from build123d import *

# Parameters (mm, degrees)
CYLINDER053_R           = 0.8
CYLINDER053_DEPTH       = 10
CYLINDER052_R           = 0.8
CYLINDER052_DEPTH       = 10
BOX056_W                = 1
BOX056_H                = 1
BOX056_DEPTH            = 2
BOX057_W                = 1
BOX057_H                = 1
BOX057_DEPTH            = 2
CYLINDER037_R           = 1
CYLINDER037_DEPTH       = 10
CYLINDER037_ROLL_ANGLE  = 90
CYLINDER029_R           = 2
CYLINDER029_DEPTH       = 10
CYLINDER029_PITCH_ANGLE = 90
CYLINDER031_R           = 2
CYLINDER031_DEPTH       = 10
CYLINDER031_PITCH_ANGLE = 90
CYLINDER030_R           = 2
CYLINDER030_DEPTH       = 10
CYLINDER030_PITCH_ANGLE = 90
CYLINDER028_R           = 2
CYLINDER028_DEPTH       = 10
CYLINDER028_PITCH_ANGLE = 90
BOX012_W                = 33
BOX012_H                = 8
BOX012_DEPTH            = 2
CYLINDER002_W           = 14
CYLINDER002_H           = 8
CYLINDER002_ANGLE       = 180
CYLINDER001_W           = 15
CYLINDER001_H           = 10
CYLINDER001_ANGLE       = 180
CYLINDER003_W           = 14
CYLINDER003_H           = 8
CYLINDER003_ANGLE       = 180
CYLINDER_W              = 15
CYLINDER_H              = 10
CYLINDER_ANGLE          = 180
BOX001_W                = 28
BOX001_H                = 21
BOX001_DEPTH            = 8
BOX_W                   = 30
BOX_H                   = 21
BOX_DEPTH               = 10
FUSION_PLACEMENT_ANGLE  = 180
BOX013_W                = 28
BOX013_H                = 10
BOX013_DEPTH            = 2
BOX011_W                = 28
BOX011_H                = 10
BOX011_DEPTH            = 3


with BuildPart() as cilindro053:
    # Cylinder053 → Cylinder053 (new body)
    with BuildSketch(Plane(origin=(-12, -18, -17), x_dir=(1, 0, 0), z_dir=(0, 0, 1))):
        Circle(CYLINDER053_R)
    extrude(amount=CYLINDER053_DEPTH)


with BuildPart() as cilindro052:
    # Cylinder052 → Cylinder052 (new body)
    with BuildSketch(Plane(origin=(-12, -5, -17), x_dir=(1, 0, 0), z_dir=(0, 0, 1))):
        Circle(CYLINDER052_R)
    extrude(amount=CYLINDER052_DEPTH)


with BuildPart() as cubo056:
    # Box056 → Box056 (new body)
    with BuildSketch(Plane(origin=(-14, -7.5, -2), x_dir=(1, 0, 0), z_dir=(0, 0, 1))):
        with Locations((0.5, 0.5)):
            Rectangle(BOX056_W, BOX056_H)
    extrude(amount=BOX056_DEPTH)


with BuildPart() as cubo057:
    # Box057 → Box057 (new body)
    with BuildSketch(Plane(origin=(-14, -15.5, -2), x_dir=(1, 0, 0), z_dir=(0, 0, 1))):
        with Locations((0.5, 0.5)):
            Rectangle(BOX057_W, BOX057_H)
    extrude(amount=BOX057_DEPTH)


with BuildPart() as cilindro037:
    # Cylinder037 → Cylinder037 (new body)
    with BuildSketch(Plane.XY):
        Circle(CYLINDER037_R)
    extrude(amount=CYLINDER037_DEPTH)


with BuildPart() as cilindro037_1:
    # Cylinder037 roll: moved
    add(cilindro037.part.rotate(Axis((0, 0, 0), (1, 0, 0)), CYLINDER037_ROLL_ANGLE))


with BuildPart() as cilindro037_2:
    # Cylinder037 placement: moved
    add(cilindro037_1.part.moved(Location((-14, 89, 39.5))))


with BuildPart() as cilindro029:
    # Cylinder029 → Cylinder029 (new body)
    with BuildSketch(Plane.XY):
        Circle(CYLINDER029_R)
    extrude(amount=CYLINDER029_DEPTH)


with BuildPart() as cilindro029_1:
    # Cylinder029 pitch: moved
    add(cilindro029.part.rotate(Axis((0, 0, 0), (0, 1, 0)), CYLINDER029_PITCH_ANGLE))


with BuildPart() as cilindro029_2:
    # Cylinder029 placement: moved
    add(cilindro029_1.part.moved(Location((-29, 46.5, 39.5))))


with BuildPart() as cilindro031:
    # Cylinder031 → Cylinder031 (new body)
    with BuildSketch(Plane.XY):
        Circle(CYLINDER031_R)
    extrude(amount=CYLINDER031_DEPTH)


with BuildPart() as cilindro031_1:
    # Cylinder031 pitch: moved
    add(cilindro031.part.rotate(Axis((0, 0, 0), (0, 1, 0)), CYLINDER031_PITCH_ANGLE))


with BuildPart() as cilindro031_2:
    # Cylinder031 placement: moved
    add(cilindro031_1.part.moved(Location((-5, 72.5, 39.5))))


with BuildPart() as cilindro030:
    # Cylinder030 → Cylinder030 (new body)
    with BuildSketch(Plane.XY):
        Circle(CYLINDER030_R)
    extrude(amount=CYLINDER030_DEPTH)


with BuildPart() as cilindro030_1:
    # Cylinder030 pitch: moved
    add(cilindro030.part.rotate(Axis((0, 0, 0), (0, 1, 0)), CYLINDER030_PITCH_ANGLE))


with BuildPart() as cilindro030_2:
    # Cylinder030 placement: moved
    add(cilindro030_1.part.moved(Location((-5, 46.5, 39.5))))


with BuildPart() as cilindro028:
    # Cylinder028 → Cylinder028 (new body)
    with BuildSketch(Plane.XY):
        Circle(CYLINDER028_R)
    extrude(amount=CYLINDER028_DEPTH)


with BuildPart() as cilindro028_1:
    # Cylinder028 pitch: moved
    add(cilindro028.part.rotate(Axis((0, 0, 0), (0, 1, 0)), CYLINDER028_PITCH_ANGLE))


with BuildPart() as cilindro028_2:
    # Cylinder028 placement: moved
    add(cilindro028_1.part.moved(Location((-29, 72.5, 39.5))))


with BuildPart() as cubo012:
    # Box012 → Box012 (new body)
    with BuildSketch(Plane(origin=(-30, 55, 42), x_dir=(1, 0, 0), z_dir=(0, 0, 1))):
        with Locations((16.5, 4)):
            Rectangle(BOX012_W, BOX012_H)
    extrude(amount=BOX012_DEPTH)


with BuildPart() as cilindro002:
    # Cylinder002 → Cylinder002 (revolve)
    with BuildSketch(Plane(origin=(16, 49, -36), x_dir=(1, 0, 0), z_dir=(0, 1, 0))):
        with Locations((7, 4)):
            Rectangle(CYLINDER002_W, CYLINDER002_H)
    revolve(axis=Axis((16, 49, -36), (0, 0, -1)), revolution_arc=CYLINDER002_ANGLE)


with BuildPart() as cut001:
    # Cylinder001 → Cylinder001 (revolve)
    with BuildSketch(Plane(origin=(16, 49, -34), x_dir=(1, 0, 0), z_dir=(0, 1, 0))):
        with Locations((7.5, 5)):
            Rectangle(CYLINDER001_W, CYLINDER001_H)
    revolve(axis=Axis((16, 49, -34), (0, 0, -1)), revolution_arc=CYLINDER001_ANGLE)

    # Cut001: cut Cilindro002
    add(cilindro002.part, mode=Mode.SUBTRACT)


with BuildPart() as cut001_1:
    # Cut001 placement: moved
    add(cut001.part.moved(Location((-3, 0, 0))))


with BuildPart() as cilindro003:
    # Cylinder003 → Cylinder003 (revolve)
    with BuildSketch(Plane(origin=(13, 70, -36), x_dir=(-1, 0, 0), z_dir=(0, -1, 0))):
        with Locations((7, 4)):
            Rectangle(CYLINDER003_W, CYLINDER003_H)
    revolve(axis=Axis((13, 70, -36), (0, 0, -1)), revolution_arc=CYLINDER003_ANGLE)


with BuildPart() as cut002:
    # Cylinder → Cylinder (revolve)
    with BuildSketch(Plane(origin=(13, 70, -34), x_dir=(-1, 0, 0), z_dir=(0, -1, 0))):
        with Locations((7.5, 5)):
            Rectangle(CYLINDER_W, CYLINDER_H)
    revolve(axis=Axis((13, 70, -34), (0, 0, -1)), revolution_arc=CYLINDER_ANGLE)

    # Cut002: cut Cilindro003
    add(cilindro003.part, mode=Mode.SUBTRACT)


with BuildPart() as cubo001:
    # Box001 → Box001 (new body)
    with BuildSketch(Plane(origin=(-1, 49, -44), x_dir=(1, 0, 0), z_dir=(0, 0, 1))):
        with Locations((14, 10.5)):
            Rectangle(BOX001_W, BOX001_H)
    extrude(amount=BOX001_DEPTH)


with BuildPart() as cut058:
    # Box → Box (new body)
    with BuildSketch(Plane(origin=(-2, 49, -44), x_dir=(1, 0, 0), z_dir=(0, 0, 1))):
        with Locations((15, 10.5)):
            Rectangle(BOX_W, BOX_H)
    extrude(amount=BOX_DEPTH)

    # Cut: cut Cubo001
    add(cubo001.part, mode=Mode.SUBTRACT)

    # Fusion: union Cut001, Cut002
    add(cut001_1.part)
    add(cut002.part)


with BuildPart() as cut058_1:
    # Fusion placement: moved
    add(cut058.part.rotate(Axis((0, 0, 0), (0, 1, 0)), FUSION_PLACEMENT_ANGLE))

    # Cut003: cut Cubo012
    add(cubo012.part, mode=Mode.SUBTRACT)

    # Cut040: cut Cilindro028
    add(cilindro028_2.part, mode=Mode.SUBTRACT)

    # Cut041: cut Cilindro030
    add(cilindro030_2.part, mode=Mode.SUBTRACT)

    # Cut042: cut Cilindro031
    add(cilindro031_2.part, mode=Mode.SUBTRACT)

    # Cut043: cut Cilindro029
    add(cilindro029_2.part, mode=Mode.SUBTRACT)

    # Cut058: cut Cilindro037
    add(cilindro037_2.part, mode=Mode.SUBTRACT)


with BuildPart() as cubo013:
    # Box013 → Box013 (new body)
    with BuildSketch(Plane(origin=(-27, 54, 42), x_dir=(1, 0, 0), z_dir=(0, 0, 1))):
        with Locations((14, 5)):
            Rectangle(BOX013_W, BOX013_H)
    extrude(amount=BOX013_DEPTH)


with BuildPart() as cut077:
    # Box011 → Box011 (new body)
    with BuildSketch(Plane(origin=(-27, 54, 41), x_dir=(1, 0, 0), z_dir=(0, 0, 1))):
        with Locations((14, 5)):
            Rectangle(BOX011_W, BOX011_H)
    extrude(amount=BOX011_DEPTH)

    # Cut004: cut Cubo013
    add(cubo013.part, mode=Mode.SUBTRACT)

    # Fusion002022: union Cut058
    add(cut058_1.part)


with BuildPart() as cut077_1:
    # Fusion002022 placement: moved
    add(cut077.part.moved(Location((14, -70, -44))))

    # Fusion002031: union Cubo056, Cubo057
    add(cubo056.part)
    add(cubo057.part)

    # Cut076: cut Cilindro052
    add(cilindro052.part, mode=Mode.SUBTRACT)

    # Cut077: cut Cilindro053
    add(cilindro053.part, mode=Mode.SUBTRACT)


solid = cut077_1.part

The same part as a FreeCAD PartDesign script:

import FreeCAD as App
import Part
import Sketcher
from FreeCAD import Vector

doc = App.newDocument("Part")
body = doc.addObject("PartDesign::Body", "Body")

# Sketch on XY plane
sketch1 = body.newObject("Sketcher::SketchObject", "Sketch")
sketch1.AttachmentSupport = (doc.getObject("XY_Plane"), [""])
sketch1.MapMode = "FlatFace"
sketch1.AttachmentOffset = App.Placement(Vector(0, 0, -17), App.Rotation())
sketch1.addGeometry(Part.Circle(Vector(-12, -18, 0), Vector(0, 0, 1), 0.8), False)
sketch1.addConstraint(Sketcher.Constraint("Diameter", 0, 1.6))
sketch1.addConstraint(Sketcher.Constraint("DistanceX", 0, 3, -1, 1, 12.0))
sketch1.addConstraint(Sketcher.Constraint("DistanceY", 0, 3, -1, 1, 18.0))
pad1 = body.newObject("PartDesign::Pad", "Pad")
pad1.Profile = sketch1
pad1.Length = 10
body2 = doc.addObject("PartDesign::Body", "Body001")

# Sketch on XY plane
sketch2 = body2.newObject("Sketcher::SketchObject", "Sketch001")
sketch2.AttachmentSupport = (doc.getObject("XY_Plane001"), [""])
sketch2.MapMode = "FlatFace"
sketch2.AttachmentOffset = App.Placement(Vector(0, 0, -17), App.Rotation())
sketch2.addGeometry(Part.Circle(Vector(-12, -5, 0), Vector(0, 0, 1), 0.8), False)
sketch2.addConstraint(Sketcher.Constraint("Diameter", 0, 1.6))
sketch2.addConstraint(Sketcher.Constraint("DistanceX", 0, 3, -1, 1, 12.0))
sketch2.addConstraint(Sketcher.Constraint("DistanceY", 0, 3, -1, 1, 5.0))
pad2 = body2.newObject("PartDesign::Pad", "Pad001")
pad2.Profile = sketch2
pad2.Length = 10
body3 = doc.addObject("PartDesign::Body", "Body002")

# Sketch on XY plane
sketch3 = body3.newObject("Sketcher::SketchObject", "Sketch002")
sketch3.AttachmentSupport = (doc.getObject("XY_Plane002"), [""])
sketch3.MapMode = "FlatFace"
sketch3.AttachmentOffset = App.Placement(Vector(0, 0, -2), App.Rotation())
sketch3.addGeometry(Part.LineSegment(Vector(-14, -6.5, 0), Vector(-14, -7.5, 0)), False)
sketch3.addGeometry(Part.LineSegment(Vector(-14, -7.5, 0), Vector(-13, -7.5, 0)), False)
sketch3.addGeometry(Part.LineSegment(Vector(-13, -7.5, 0), Vector(-13, -6.5, 0)), False)
sketch3.addGeometry(Part.LineSegment(Vector(-13, -6.5, 0), Vector(-14, -6.5, 0)), False)
sketch3.addConstraint(Sketcher.Constraint("Coincident", 0, 2, 1, 1))
sketch3.addConstraint(Sketcher.Constraint("Coincident", 1, 2, 2, 1))
sketch3.addConstraint(Sketcher.Constraint("Coincident", 2, 2, 3, 1))
sketch3.addConstraint(Sketcher.Constraint("Coincident", 3, 2, 0, 1))
sketch3.addConstraint(Sketcher.Constraint("Vertical", 0))
sketch3.addConstraint(Sketcher.Constraint("Horizontal", 1))
sketch3.addConstraint(Sketcher.Constraint("Vertical", 2))
sketch3.addConstraint(Sketcher.Constraint("Horizontal", 3))
sketch3.addConstraint(Sketcher.Constraint("Equal", 3, 0))
sketch3.addConstraint(Sketcher.Constraint("DistanceX", 1, 1, 1, 2, 1.0))
sketch3.addConstraint(Sketcher.Constraint("DistanceX", 0, 2, -1, 1, 14.0))
sketch3.addConstraint(Sketcher.Constraint("DistanceY", 0, 2, -1, 1, 7.5))
pad3 = body3.newObject("PartDesign::Pad", "Pad002")
pad3.Profile = sketch3
pad3.Length = 2
body4 = doc.addObject("PartDesign::Body", "Body003")

# Sketch on XY plane
sketch4 = body4.newObject("Sketcher::SketchObject", "Sketch003")
sketch4.AttachmentSupport = (doc.getObject("XY_Plane003"), [""])
sketch4.MapMode = "FlatFace"
sketch4.AttachmentOffset = App.Placement(Vector(0, 0, -2), App.Rotation())
sketch4.addGeometry(Part.LineSegment(Vector(-14, -14.5, 0), Vector(-14, -15.5, 0)), False)
sketch4.addGeometry(Part.LineSegment(Vector(-14, -15.5, 0), Vector(-13, -15.5, 0)), False)
sketch4.addGeometry(Part.LineSegment(Vector(-13, -15.5, 0), Vector(-13, -14.5, 0)), False)
sketch4.addGeometry(Part.LineSegment(Vector(-13, -14.5, 0), Vector(-14, -14.5, 0)), False)
sketch4.addConstraint(Sketcher.Constraint("Coincident", 0, 2, 1, 1))
sketch4.addConstraint(Sketcher.Constraint("Coincident", 1, 2, 2, 1))
sketch4.addConstraint(Sketcher.Constraint("Coincident", 2, 2, 3, 1))
sketch4.addConstraint(Sketcher.Constraint("Coincident", 3, 2, 0, 1))
sketch4.addConstraint(Sketcher.Constraint("Vertical", 0))
sketch4.addConstraint(Sketcher.Constraint("Horizontal", 1))
sketch4.addConstraint(Sketcher.Constraint("Vertical", 2))
sketch4.addConstraint(Sketcher.Constraint("Horizontal", 3))
sketch4.addConstraint(Sketcher.Constraint("Equal", 3, 0))
sketch4.addConstraint(Sketcher.Constraint("DistanceX", 1, 1, 1, 2, 1.0))
sketch4.addConstraint(Sketcher.Constraint("DistanceX", 0, 2, -1, 1, 14.0))
sketch4.addConstraint(Sketcher.Constraint("DistanceY", 0, 2, -1, 1, 15.5))
pad4 = body4.newObject("PartDesign::Pad", "Pad003")
pad4.Profile = sketch4
pad4.Length = 2
body5 = doc.addObject("PartDesign::Body", "Body004")

# Sketch on XY plane
sketch5 = body5.newObject("Sketcher::SketchObject", "Sketch004")
sketch5.AttachmentSupport = (doc.getObject("XY_Plane004"), [""])
sketch5.MapMode = "FlatFace"
sketch5.addGeometry(Part.Circle(Vector(0, 0, 0), Vector(0, 0, 1), 1), False)
sketch5.addConstraint(Sketcher.Constraint("Coincident", 0, 3, -1, 1))
sketch5.addConstraint(Sketcher.Constraint("Diameter", 0, 2.0))
pad5 = body5.newObject("PartDesign::Pad", "Pad004")
pad5.Profile = sketch5
pad5.Length = 10
body6 = doc.addObject("PartDesign::Body", "Body005")
doc.recompute()

body5.Placement = App.Placement(Vector(0, 0, 0), App.Rotation(Vector(1, 0, 0), 90))
boolean = body6.newObject("PartDesign::Boolean", "Boolean")
boolean.Type = "Fuse"
boolean.addObjects([body5])
body7 = doc.addObject("PartDesign::Body", "Body006")
doc.recompute()

body6.Placement = App.Placement(Vector(-14, 89, 39.5), App.Rotation(Vector(0, 0, 1), 0))
boolean2 = body7.newObject("PartDesign::Boolean", "Boolean001")
boolean2.Type = "Fuse"
boolean2.addObjects([body6])
body8 = doc.addObject("PartDesign::Body", "Body007")

# Sketch on XY plane
sketch6 = body8.newObject("Sketcher::SketchObject", "Sketch005")
sketch6.AttachmentSupport = (doc.getObject("XY_Plane007"), [""])
sketch6.MapMode = "FlatFace"
sketch6.addGeometry(Part.Circle(Vector(0, 0, 0), Vector(0, 0, 1), 2), False)
sketch6.addConstraint(Sketcher.Constraint("Coincident", 0, 3, -1, 1))
sketch6.addConstraint(Sketcher.Constraint("Diameter", 0, 4.0))
pad6 = body8.newObject("PartDesign::Pad", "Pad005")
pad6.Profile = sketch6
pad6.Length = 10
body9 = doc.addObject("PartDesign::Body", "Body008")
doc.recompute()

body8.Placement = App.Placement(Vector(0, 0, 0), App.Rotation(Vector(0, 1, 0), 90))
boolean3 = body9.newObject("PartDesign::Boolean", "Boolean002")
boolean3.Type = "Fuse"
boolean3.addObjects([body8])
body10 = doc.addObject("PartDesign::Body", "Body009")
doc.recompute()

body9.Placement = App.Placement(Vector(-29, 46.5, 39.5), App.Rotation(Vector(0, 0, 1), 0))
boolean4 = body10.newObject("PartDesign::Boolean", "Boolean003")
boolean4.Type = "Fuse"
boolean4.addObjects([body9])
body11 = doc.addObject("PartDesign::Body", "Body010")

# Sketch on XY plane
sketch7 = body11.newObject("Sketcher::SketchObject", "Sketch006")
sketch7.AttachmentSupport = (doc.getObject("XY_Plane010"), [""])
sketch7.MapMode = "FlatFace"
sketch7.addGeometry(Part.Circle(Vector(0, 0, 0), Vector(0, 0, 1), 2), False)
sketch7.addConstraint(Sketcher.Constraint("Coincident", 0, 3, -1, 1))
sketch7.addConstraint(Sketcher.Constraint("Diameter", 0, 4.0))
pad7 = body11.newObject("PartDesign::Pad", "Pad006")
pad7.Profile = sketch7
pad7.Length = 10
body12 = doc.addObject("PartDesign::Body", "Body011")
doc.recompute()

body11.Placement = App.Placement(Vector(0, 0, 0), App.Rotation(Vector(0, 1, 0), 90))
boolean5 = body12.newObject("PartDesign::Boolean", "Boolean004")
boolean5.Type = "Fuse"
boolean5.addObjects([body11])
body13 = doc.addObject("PartDesign::Body", "Body012")
doc.recompute()

body12.Placement = App.Placement(Vector(-5, 72.5, 39.5), App.Rotation(Vector(0, 0, 1), 0))
boolean6 = body13.newObject("PartDesign::Boolean", "Boolean005")
boolean6.Type = "Fuse"
boolean6.addObjects([body12])
body14 = doc.addObject("PartDesign::Body", "Body013")

# Sketch on XY plane
sketch8 = body14.newObject("Sketcher::SketchObject", "Sketch007")
sketch8.AttachmentSupport = (doc.getObject("XY_Plane013"), [""])
sketch8.MapMode = "FlatFace"
sketch8.addGeometry(Part.Circle(Vector(0, 0, 0), Vector(0, 0, 1), 2), False)
sketch8.addConstraint(Sketcher.Constraint("Coincident", 0, 3, -1, 1))
sketch8.addConstraint(Sketcher.Constraint("Diameter", 0, 4.0))
pad8 = body14.newObject("PartDesign::Pad", "Pad007")
pad8.Profile = sketch8
pad8.Length = 10
body15 = doc.addObject("PartDesign::Body", "Body014")
doc.recompute()

body14.Placement = App.Placement(Vector(0, 0, 0), App.Rotation(Vector(0, 1, 0), 90))
boolean7 = body15.newObject("PartDesign::Boolean", "Boolean006")
boolean7.Type = "Fuse"
boolean7.addObjects([body14])
body16 = doc.addObject("PartDesign::Body", "Body015")
doc.recompute()

body15.Placement = App.Placement(Vector(-5, 46.5, 39.5), App.Rotation(Vector(0, 0, 1), 0))
boolean8 = body16.newObject("PartDesign::Boolean", "Boolean007")
boolean8.Type = "Fuse"
boolean8.addObjects([body15])
body17 = doc.addObject("PartDesign::Body", "Body016")

# Sketch on XY plane
sketch9 = body17.newObject("Sketcher::SketchObject", "Sketch008")
sketch9.AttachmentSupport = (doc.getObject("XY_Plane016"), [""])
sketch9.MapMode = "FlatFace"
sketch9.addGeometry(Part.Circle(Vector(0, 0, 0), Vector(0, 0, 1), 2), False)
sketch9.addConstraint(Sketcher.Constraint("Coincident", 0, 3, -1, 1))
sketch9.addConstraint(Sketcher.Constraint("Diameter", 0, 4.0))
pad9 = body17.newObject("PartDesign::Pad", "Pad008")
pad9.Profile = sketch9
pad9.Length = 10
body18 = doc.addObject("PartDesign::Body", "Body017")
doc.recompute()

body17.Placement = App.Placement(Vector(0, 0, 0), App.Rotation(Vector(0, 1, 0), 90))
boolean9 = body18.newObject("PartDesign::Boolean", "Boolean008")
boolean9.Type = "Fuse"
boolean9.addObjects([body17])
body19 = doc.addObject("PartDesign::Body", "Body018")
doc.recompute()

body18.Placement = App.Placement(Vector(-29, 72.5, 39.5), App.Rotation(Vector(0, 0, 1), 0))
boolean10 = body19.newObject("PartDesign::Boolean", "Boolean009")
boolean10.Type = "Fuse"
boolean10.addObjects([body18])
body20 = doc.addObject("PartDesign::Body", "Body019")

# Sketch on XY plane
sketch10 = body20.newObject("Sketcher::SketchObject", "Sketch009")
sketch10.AttachmentSupport = (doc.getObject("XY_Plane019"), [""])
sketch10.MapMode = "FlatFace"
sketch10.AttachmentOffset = App.Placement(Vector(0, 0, 42), App.Rotation())
sketch10.addGeometry(Part.LineSegment(Vector(-30, 63, 0), Vector(-30, 55, 0)), False)
sketch10.addGeometry(Part.LineSegment(Vector(-30, 55, 0), Vector(3, 55, 0)), False)
sketch10.addGeometry(Part.LineSegment(Vector(3, 55, 0), Vector(3, 63, 0)), False)
sketch10.addGeometry(Part.LineSegment(Vector(3, 63, 0), Vector(-30, 63, 0)), False)
sketch10.addConstraint(Sketcher.Constraint("Coincident", 0, 2, 1, 1))
sketch10.addConstraint(Sketcher.Constraint("Coincident", 1, 2, 2, 1))
sketch10.addConstraint(Sketcher.Constraint("Coincident", 2, 2, 3, 1))
sketch10.addConstraint(Sketcher.Constraint("Coincident", 3, 2, 0, 1))
sketch10.addConstraint(Sketcher.Constraint("Vertical", 0))
sketch10.addConstraint(Sketcher.Constraint("Horizontal", 1))
sketch10.addConstraint(Sketcher.Constraint("Vertical", 2))
sketch10.addConstraint(Sketcher.Constraint("Horizontal", 3))
sketch10.addConstraint(Sketcher.Constraint("DistanceX", 1, 1, 1, 2, 33.0))
sketch10.addConstraint(Sketcher.Constraint("DistanceY", 0, 2, 0, 1, 8.0))
sketch10.addConstraint(Sketcher.Constraint("DistanceX", 0, 2, -1, 1, 30.0))
sketch10.addConstraint(Sketcher.Constraint("DistanceY", -1, 1, 0, 2, 55.0))
pad10 = body20.newObject("PartDesign::Pad", "Pad009")
pad10.Profile = sketch10
pad10.Length = 2
body21 = doc.addObject("PartDesign::Body", "Body020")

# Sketch on XZ plane
sketch11 = body21.newObject("Sketcher::SketchObject", "Sketch010")
sketch11.AttachmentSupport = (doc.getObject("XZ_Plane020"), [""])
sketch11.MapMode = "FlatFace"
sketch11.AttachmentOffset = App.Placement(Vector(0, 0, -49), App.Rotation())
sketch11.addGeometry(Part.LineSegment(Vector(16, -44, 0), Vector(16, -36, 0)), False)
sketch11.addGeometry(Part.LineSegment(Vector(16, -36, 0), Vector(30, -36, 0)), False)
sketch11.addGeometry(Part.LineSegment(Vector(30, -36, 0), Vector(30, -44, 0)), False)
sketch11.addGeometry(Part.LineSegment(Vector(30, -44, 0), Vector(16, -44, 0)), False)
sketch11.addGeometry(Part.LineSegment(Vector(16, -36, 0), Vector(16, -44, 0)), True)  # axis
sketch11.addConstraint(Sketcher.Constraint("Coincident", 0, 2, 1, 1))
sketch11.addConstraint(Sketcher.Constraint("Coincident", 1, 2, 2, 1))
sketch11.addConstraint(Sketcher.Constraint("Coincident", 2, 2, 3, 1))
sketch11.addConstraint(Sketcher.Constraint("Coincident", 3, 2, 0, 1))
sketch11.addConstraint(Sketcher.Constraint("Vertical", 0))
sketch11.addConstraint(Sketcher.Constraint("Horizontal", 1))
sketch11.addConstraint(Sketcher.Constraint("Vertical", 2))
sketch11.addConstraint(Sketcher.Constraint("Horizontal", 3))
sketch11.addConstraint(Sketcher.Constraint("Vertical", 4))
sketch11.addConstraint(Sketcher.Constraint("Coincident", 4, 1, 0, 2))
sketch11.addConstraint(Sketcher.Constraint("Horizontal", 2, 2, 4, 2))
sketch11.addConstraint(Sketcher.Constraint("DistanceX", 1, 1, 1, 2, 14.0))
sketch11.addConstraint(Sketcher.Constraint("DistanceY", 0, 1, 0, 2, 8.0))
sketch11.addConstraint(Sketcher.Constraint("DistanceX", -1, 1, 0, 2, 16.0))
sketch11.addConstraint(Sketcher.Constraint("DistanceY", 0, 2, -1, 1, 36.0))
revolution = body21.newObject("PartDesign::Revolution", "Revolution")
revolution.Profile = sketch11
revolution.ReferenceAxis = (sketch11, ["Axis0"])
revolution.Angle = 180
body22 = doc.addObject("PartDesign::Body", "Body021")

# Sketch on XZ plane
sketch12 = body22.newObject("Sketcher::SketchObject", "Sketch011")
sketch12.AttachmentSupport = (doc.getObject("XZ_Plane021"), [""])
sketch12.MapMode = "FlatFace"
sketch12.AttachmentOffset = App.Placement(Vector(0, 0, -49), App.Rotation())
sketch12.addGeometry(Part.LineSegment(Vector(16, -44, 0), Vector(16, -34, 0)), False)
sketch12.addGeometry(Part.LineSegment(Vector(16, -34, 0), Vector(31, -34, 0)), False)
sketch12.addGeometry(Part.LineSegment(Vector(31, -34, 0), Vector(31, -44, 0)), False)
sketch12.addGeometry(Part.LineSegment(Vector(31, -44, 0), Vector(16, -44, 0)), False)
sketch12.addGeometry(Part.LineSegment(Vector(16, -34, 0), Vector(16, -44, 0)), True)  # axis
sketch12.addConstraint(Sketcher.Constraint("Coincident", 0, 2, 1, 1))
sketch12.addConstraint(Sketcher.Constraint("Coincident", 1, 2, 2, 1))
sketch12.addConstraint(Sketcher.Constraint("Coincident", 2, 2, 3, 1))
sketch12.addConstraint(Sketcher.Constraint("Coincident", 3, 2, 0, 1))
sketch12.addConstraint(Sketcher.Constraint("Vertical", 0))
sketch12.addConstraint(Sketcher.Constraint("Horizontal", 1))
sketch12.addConstraint(Sketcher.Constraint("Vertical", 2))
sketch12.addConstraint(Sketcher.Constraint("Horizontal", 3))
sketch12.addConstraint(Sketcher.Constraint("Vertical", 4))
sketch12.addConstraint(Sketcher.Constraint("Coincident", 4, 1, 0, 2))
sketch12.addConstraint(Sketcher.Constraint("Horizontal", 2, 2, 4, 2))
sketch12.addConstraint(Sketcher.Constraint("DistanceX", 1, 1, 1, 2, 15.0))
sketch12.addConstraint(Sketcher.Constraint("DistanceY", 0, 1, 0, 2, 10.0))
sketch12.addConstraint(Sketcher.Constraint("DistanceX", -1, 1, 0, 2, 16.0))
sketch12.addConstraint(Sketcher.Constraint("DistanceY", 0, 2, -1, 1, 34.0))
revolution2 = body22.newObject("PartDesign::Revolution", "Revolution001")
revolution2.Profile = sketch12
revolution2.ReferenceAxis = (sketch12, ["Axis0"])
revolution2.Angle = 180
doc.recompute()

boolean11 = body22.newObject("PartDesign::Boolean", "Boolean010")
boolean11.Type = "Cut"
boolean11.addObjects([body21])
body23 = doc.addObject("PartDesign::Body", "Body022")
doc.recompute()

body22.Placement = App.Placement(Vector(-3, 0, 0), App.Rotation(Vector(0, 0, 1), 0))
boolean12 = body23.newObject("PartDesign::Boolean", "Boolean011")
boolean12.Type = "Fuse"
boolean12.addObjects([body22])
body24 = doc.addObject("PartDesign::Body", "Body023")

# Sketch on XZ plane
sketch13 = body24.newObject("Sketcher::SketchObject", "Sketch012")
sketch13.AttachmentSupport = (doc.getObject("XZ_Plane023"), [""])
sketch13.MapMode = "FlatFace"
sketch13.AttachmentOffset = App.Placement(Vector(0, 0, -70), App.Rotation())
sketch13.addGeometry(Part.LineSegment(Vector(13, -44, 0), Vector(13, -36, 0)), False)
sketch13.addGeometry(Part.LineSegment(Vector(13, -36, 0), Vector(-1, -36, 0)), False)
sketch13.addGeometry(Part.LineSegment(Vector(-1, -36, 0), Vector(-1, -44, 0)), False)
sketch13.addGeometry(Part.LineSegment(Vector(-1, -44, 0), Vector(13, -44, 0)), False)
sketch13.addGeometry(Part.LineSegment(Vector(13, -36, 0), Vector(13, -44, 0)), True)  # axis
sketch13.addConstraint(Sketcher.Constraint("Coincident", 0, 2, 1, 1))
sketch13.addConstraint(Sketcher.Constraint("Coincident", 1, 2, 2, 1))
sketch13.addConstraint(Sketcher.Constraint("Coincident", 2, 2, 3, 1))
sketch13.addConstraint(Sketcher.Constraint("Coincident", 3, 2, 0, 1))
sketch13.addConstraint(Sketcher.Constraint("Vertical", 0))
sketch13.addConstraint(Sketcher.Constraint("Horizontal", 1))
sketch13.addConstraint(Sketcher.Constraint("Vertical", 2))
sketch13.addConstraint(Sketcher.Constraint("Horizontal", 3))
sketch13.addConstraint(Sketcher.Constraint("Vertical", 4))
sketch13.addConstraint(Sketcher.Constraint("Coincident", 4, 1, 0, 2))
sketch13.addConstraint(Sketcher.Constraint("Horizontal", 2, 2, 4, 2))
sketch13.addConstraint(Sketcher.Constraint("DistanceX", 1, 2, 1, 1, 14.0))
sketch13.addConstraint(Sketcher.Constraint("DistanceY", 0, 1, 0, 2, 8.0))
sketch13.addConstraint(Sketcher.Constraint("DistanceX", -1, 1, 0, 2, 13.0))
sketch13.addConstraint(Sketcher.Constraint("DistanceY", 0, 2, -1, 1, 36.0))
revolution3 = body24.newObject("PartDesign::Revolution", "Revolution002")
revolution3.Profile = sketch13
revolution3.ReferenceAxis = (sketch13, ["Axis0"])
revolution3.Angle = 180
body25 = doc.addObject("PartDesign::Body", "Body024")

# Sketch on XZ plane
sketch14 = body25.newObject("Sketcher::SketchObject", "Sketch013")
sketch14.AttachmentSupport = (doc.getObject("XZ_Plane024"), [""])
sketch14.MapMode = "FlatFace"
sketch14.AttachmentOffset = App.Placement(Vector(0, 0, -70), App.Rotation())
sketch14.addGeometry(Part.LineSegment(Vector(13, -44, 0), Vector(13, -34, 0)), False)
sketch14.addGeometry(Part.LineSegment(Vector(13, -34, 0), Vector(-2, -34, 0)), False)
sketch14.addGeometry(Part.LineSegment(Vector(-2, -34, 0), Vector(-2, -44, 0)), False)
sketch14.addGeometry(Part.LineSegment(Vector(-2, -44, 0), Vector(13, -44, 0)), False)
sketch14.addGeometry(Part.LineSegment(Vector(13, -34, 0), Vector(13, -44, 0)), True)  # axis
sketch14.addConstraint(Sketcher.Constraint("Coincident", 0, 2, 1, 1))
sketch14.addConstraint(Sketcher.Constraint("Coincident", 1, 2, 2, 1))
sketch14.addConstraint(Sketcher.Constraint("Coincident", 2, 2, 3, 1))
sketch14.addConstraint(Sketcher.Constraint("Coincident", 3, 2, 0, 1))
sketch14.addConstraint(Sketcher.Constraint("Vertical", 0))
sketch14.addConstraint(Sketcher.Constraint("Horizontal", 1))
sketch14.addConstraint(Sketcher.Constraint("Vertical", 2))
sketch14.addConstraint(Sketcher.Constraint("Horizontal", 3))
sketch14.addConstraint(Sketcher.Constraint("Vertical", 4))
sketch14.addConstraint(Sketcher.Constraint("Coincident", 4, 1, 0, 2))
sketch14.addConstraint(Sketcher.Constraint("Horizontal", 2, 2, 4, 2))
sketch14.addConstraint(Sketcher.Constraint("DistanceX", 1, 2, 1, 1, 15.0))
sketch14.addConstraint(Sketcher.Constraint("DistanceY", 0, 1, 0, 2, 10.0))
sketch14.addConstraint(Sketcher.Constraint("DistanceX", -1, 1, 0, 2, 13.0))
sketch14.addConstraint(Sketcher.Constraint("DistanceY", 0, 2, -1, 1, 34.0))
revolution4 = body25.newObject("PartDesign::Revolution", "Revolution003")
revolution4.Profile = sketch14
revolution4.ReferenceAxis = (sketch14, ["Axis0"])
revolution4.Angle = 180
doc.recompute()

boolean13 = body25.newObject("PartDesign::Boolean", "Boolean012")
boolean13.Type = "Cut"
boolean13.addObjects([body24])
body26 = doc.addObject("PartDesign::Body", "Body025")

# Sketch on XY plane
sketch15 = body26.newObject("Sketcher::SketchObject", "Sketch014")
sketch15.AttachmentSupport = (doc.getObject("XY_Plane025"), [""])
sketch15.MapMode = "FlatFace"
sketch15.AttachmentOffset = App.Placement(Vector(0, 0, -44), App.Rotation())
sketch15.addGeometry(Part.LineSegment(Vector(-1, 70, 0), Vector(-1, 49, 0)), False)
sketch15.addGeometry(Part.LineSegment(Vector(-1, 49, 0), Vector(27, 49, 0)), False)
sketch15.addGeometry(Part.LineSegment(Vector(27, 49, 0), Vector(27, 70, 0)), False)
sketch15.addGeometry(Part.LineSegment(Vector(27, 70, 0), Vector(-1, 70, 0)), False)
sketch15.addConstraint(Sketcher.Constraint("Coincident", 0, 2, 1, 1))
sketch15.addConstraint(Sketcher.Constraint("Coincident", 1, 2, 2, 1))
sketch15.addConstraint(Sketcher.Constraint("Coincident", 2, 2, 3, 1))
sketch15.addConstraint(Sketcher.Constraint("Coincident", 3, 2, 0, 1))
sketch15.addConstraint(Sketcher.Constraint("Vertical", 0))
sketch15.addConstraint(Sketcher.Constraint("Horizontal", 1))
sketch15.addConstraint(Sketcher.Constraint("Vertical", 2))
sketch15.addConstraint(Sketcher.Constraint("Horizontal", 3))
sketch15.addConstraint(Sketcher.Constraint("DistanceX", 1, 1, 1, 2, 28.0))
sketch15.addConstraint(Sketcher.Constraint("DistanceY", 0, 2, 0, 1, 21.0))
sketch15.addConstraint(Sketcher.Constraint("DistanceX", 0, 2, -1, 1, 1.0))
sketch15.addConstraint(Sketcher.Constraint("DistanceY", -1, 1, 0, 2, 49.0))
pad11 = body26.newObject("PartDesign::Pad", "Pad010")
pad11.Profile = sketch15
pad11.Length = 8
body27 = doc.addObject("PartDesign::Body", "Body026")

# Sketch on XY plane
sketch16 = body27.newObject("Sketcher::SketchObject", "Sketch015")
sketch16.AttachmentSupport = (doc.getObject("XY_Plane026"), [""])
sketch16.MapMode = "FlatFace"
sketch16.AttachmentOffset = App.Placement(Vector(0, 0, -44), App.Rotation())
sketch16.addGeometry(Part.LineSegment(Vector(-2, 70, 0), Vector(-2, 49, 0)), False)
sketch16.addGeometry(Part.LineSegment(Vector(-2, 49, 0), Vector(28, 49, 0)), False)
sketch16.addGeometry(Part.LineSegment(Vector(28, 49, 0), Vector(28, 70, 0)), False)
sketch16.addGeometry(Part.LineSegment(Vector(28, 70, 0), Vector(-2, 70, 0)), False)
sketch16.addConstraint(Sketcher.Constraint("Coincident", 0, 2, 1, 1))
sketch16.addConstraint(Sketcher.Constraint("Coincident", 1, 2, 2, 1))
sketch16.addConstraint(Sketcher.Constraint("Coincident", 2, 2, 3, 1))
sketch16.addConstraint(Sketcher.Constraint("Coincident", 3, 2, 0, 1))
sketch16.addConstraint(Sketcher.Constraint("Vertical", 0))
sketch16.addConstraint(Sketcher.Constraint("Horizontal", 1))
sketch16.addConstraint(Sketcher.Constraint("Vertical", 2))
sketch16.addConstraint(Sketcher.Constraint("Horizontal", 3))
sketch16.addConstraint(Sketcher.Constraint("DistanceX", 1, 1, 1, 2, 30.0))
sketch16.addConstraint(Sketcher.Constraint("DistanceY", 0, 2, 0, 1, 21.0))
sketch16.addConstraint(Sketcher.Constraint("DistanceX", 0, 2, -1, 1, 2.0))
sketch16.addConstraint(Sketcher.Constraint("DistanceY", -1, 1, 0, 2, 49.0))
pad12 = body27.newObject("PartDesign::Pad", "Pad011")
pad12.Profile = sketch16
pad12.Length = 10
doc.recompute()

boolean14 = body27.newObject("PartDesign::Boolean", "Boolean013")
boolean14.Type = "Cut"
boolean14.addObjects([body26])
doc.recompute()

boolean15 = body27.newObject("PartDesign::Boolean", "Boolean014")
boolean15.Type = "Fuse"
boolean15.addObjects([body23])
doc.recompute()

boolean16 = body27.newObject("PartDesign::Boolean", "Boolean015")
boolean16.Type = "Fuse"
boolean16.addObjects([body25])
body28 = doc.addObject("PartDesign::Body", "Body027")
doc.recompute()

body27.Placement = App.Placement(Vector(0, 0, 0), App.Rotation(Vector(0, 1, 0), 180))
boolean17 = body28.newObject("PartDesign::Boolean", "Boolean016")
boolean17.Type = "Fuse"
boolean17.addObjects([body27])
doc.recompute()

boolean18 = body28.newObject("PartDesign::Boolean", "Boolean017")
boolean18.Type = "Cut"
boolean18.addObjects([body20])
doc.recompute()

boolean19 = body28.newObject("PartDesign::Boolean", "Boolean018")
boolean19.Type = "Cut"
boolean19.addObjects([body19])
doc.recompute()

boolean20 = body28.newObject("PartDesign::Boolean", "Boolean019")
boolean20.Type = "Cut"
boolean20.addObjects([body16])
doc.recompute()

boolean21 = body28.newObject("PartDesign::Boolean", "Boolean020")
boolean21.Type = "Cut"
boolean21.addObjects([body13])
doc.recompute()

boolean22 = body28.newObject("PartDesign::Boolean", "Boolean021")
boolean22.Type = "Cut"
boolean22.addObjects([body10])
doc.recompute()

boolean23 = body28.newObject("PartDesign::Boolean", "Boolean022")
boolean23.Type = "Cut"
boolean23.addObjects([body7])
body29 = doc.addObject("PartDesign::Body", "Body028")

# Sketch on XY plane
sketch17 = body29.newObject("Sketcher::SketchObject", "Sketch016")
sketch17.AttachmentSupport = (doc.getObject("XY_Plane028"), [""])
sketch17.MapMode = "FlatFace"
sketch17.AttachmentOffset = App.Placement(Vector(0, 0, 42), App.Rotation())
sketch17.addGeometry(Part.LineSegment(Vector(-27, 64, 0), Vector(-27, 54, 0)), False)
sketch17.addGeometry(Part.LineSegment(Vector(-27, 54, 0), Vector(1, 54, 0)), False)
sketch17.addGeometry(Part.LineSegment(Vector(1, 54, 0), Vector(1, 64, 0)), False)
sketch17.addGeometry(Part.LineSegment(Vector(1, 64, 0), Vector(-27, 64, 0)), False)
sketch17.addConstraint(Sketcher.Constraint("Coincident", 0, 2, 1, 1))
sketch17.addConstraint(Sketcher.Constraint("Coincident", 1, 2, 2, 1))
sketch17.addConstraint(Sketcher.Constraint("Coincident", 2, 2, 3, 1))
sketch17.addConstraint(Sketcher.Constraint("Coincident", 3, 2, 0, 1))
sketch17.addConstraint(Sketcher.Constraint("Vertical", 0))
sketch17.addConstraint(Sketcher.Constraint("Horizontal", 1))
sketch17.addConstraint(Sketcher.Constraint("Vertical", 2))
sketch17.addConstraint(Sketcher.Constraint("Horizontal", 3))
sketch17.addConstraint(Sketcher.Constraint("DistanceX", 1, 1, 1, 2, 28.0))
sketch17.addConstraint(Sketcher.Constraint("DistanceY", 0, 2, 0, 1, 10.0))
sketch17.addConstraint(Sketcher.Constraint("DistanceX", 0, 2, -1, 1, 27.0))
sketch17.addConstraint(Sketcher.Constraint("DistanceY", -1, 1, 0, 2, 54.0))
pad13 = body29.newObject("PartDesign::Pad", "Pad012")
pad13.Profile = sketch17
pad13.Length = 2
body30 = doc.addObject("PartDesign::Body", "Body029")

# Sketch on XY plane
sketch18 = body30.newObject("Sketcher::SketchObject", "Sketch017")
sketch18.AttachmentSupport = (doc.getObject("XY_Plane029"), [""])
sketch18.MapMode = "FlatFace"
sketch18.AttachmentOffset = App.Placement(Vector(0, 0, 41), App.Rotation())
sketch18.addGeometry(Part.LineSegment(Vector(-27, 64, 0), Vector(-27, 54, 0)), False)
sketch18.addGeometry(Part.LineSegment(Vector(-27, 54, 0), Vector(1, 54, 0)), False)
sketch18.addGeometry(Part.LineSegment(Vector(1, 54, 0), Vector(1, 64, 0)), False)
sketch18.addGeometry(Part.LineSegment(Vector(1, 64, 0), Vector(-27, 64, 0)), False)
sketch18.addConstraint(Sketcher.Constraint("Coincident", 0, 2, 1, 1))
sketch18.addConstraint(Sketcher.Constraint("Coincident", 1, 2, 2, 1))
sketch18.addConstraint(Sketcher.Constraint("Coincident", 2, 2, 3, 1))
sketch18.addConstraint(Sketcher.Constraint("Coincident", 3, 2, 0, 1))
sketch18.addConstraint(Sketcher.Constraint("Vertical", 0))
sketch18.addConstraint(Sketcher.Constraint("Horizontal", 1))
sketch18.addConstraint(Sketcher.Constraint("Vertical", 2))
sketch18.addConstraint(Sketcher.Constraint("Horizontal", 3))
sketch18.addConstraint(Sketcher.Constraint("DistanceX", 1, 1, 1, 2, 28.0))
sketch18.addConstraint(Sketcher.Constraint("DistanceY", 0, 2, 0, 1, 10.0))
sketch18.addConstraint(Sketcher.Constraint("DistanceX", 0, 2, -1, 1, 27.0))
sketch18.addConstraint(Sketcher.Constraint("DistanceY", -1, 1, 0, 2, 54.0))
pad14 = body30.newObject("PartDesign::Pad", "Pad013")
pad14.Profile = sketch18
pad14.Length = 3
doc.recompute()

boolean24 = body30.newObject("PartDesign::Boolean", "Boolean023")
boolean24.Type = "Cut"
boolean24.addObjects([body29])
doc.recompute()

boolean25 = body30.newObject("PartDesign::Boolean", "Boolean024")
boolean25.Type = "Fuse"
boolean25.addObjects([body28])
body31 = doc.addObject("PartDesign::Body", "Body030")
doc.recompute()

body30.Placement = App.Placement(Vector(14, -70, -44), App.Rotation(Vector(0, 0, 1), 0))
boolean26 = body31.newObject("PartDesign::Boolean", "Boolean025")
boolean26.Type = "Fuse"
boolean26.addObjects([body30])
doc.recompute()

boolean27 = body31.newObject("PartDesign::Boolean", "Boolean026")
boolean27.Type = "Fuse"
boolean27.addObjects([body3])
doc.recompute()

boolean28 = body31.newObject("PartDesign::Boolean", "Boolean027")
boolean28.Type = "Fuse"
boolean28.addObjects([body4])
doc.recompute()

boolean29 = body31.newObject("PartDesign::Boolean", "Boolean028")
boolean29.Type = "Cut"
boolean29.addObjects([body2])
doc.recompute()

boolean30 = body31.newObject("PartDesign::Boolean", "Boolean029")
boolean30.Type = "Cut"
boolean30.addObjects([body])

doc.recompute()
